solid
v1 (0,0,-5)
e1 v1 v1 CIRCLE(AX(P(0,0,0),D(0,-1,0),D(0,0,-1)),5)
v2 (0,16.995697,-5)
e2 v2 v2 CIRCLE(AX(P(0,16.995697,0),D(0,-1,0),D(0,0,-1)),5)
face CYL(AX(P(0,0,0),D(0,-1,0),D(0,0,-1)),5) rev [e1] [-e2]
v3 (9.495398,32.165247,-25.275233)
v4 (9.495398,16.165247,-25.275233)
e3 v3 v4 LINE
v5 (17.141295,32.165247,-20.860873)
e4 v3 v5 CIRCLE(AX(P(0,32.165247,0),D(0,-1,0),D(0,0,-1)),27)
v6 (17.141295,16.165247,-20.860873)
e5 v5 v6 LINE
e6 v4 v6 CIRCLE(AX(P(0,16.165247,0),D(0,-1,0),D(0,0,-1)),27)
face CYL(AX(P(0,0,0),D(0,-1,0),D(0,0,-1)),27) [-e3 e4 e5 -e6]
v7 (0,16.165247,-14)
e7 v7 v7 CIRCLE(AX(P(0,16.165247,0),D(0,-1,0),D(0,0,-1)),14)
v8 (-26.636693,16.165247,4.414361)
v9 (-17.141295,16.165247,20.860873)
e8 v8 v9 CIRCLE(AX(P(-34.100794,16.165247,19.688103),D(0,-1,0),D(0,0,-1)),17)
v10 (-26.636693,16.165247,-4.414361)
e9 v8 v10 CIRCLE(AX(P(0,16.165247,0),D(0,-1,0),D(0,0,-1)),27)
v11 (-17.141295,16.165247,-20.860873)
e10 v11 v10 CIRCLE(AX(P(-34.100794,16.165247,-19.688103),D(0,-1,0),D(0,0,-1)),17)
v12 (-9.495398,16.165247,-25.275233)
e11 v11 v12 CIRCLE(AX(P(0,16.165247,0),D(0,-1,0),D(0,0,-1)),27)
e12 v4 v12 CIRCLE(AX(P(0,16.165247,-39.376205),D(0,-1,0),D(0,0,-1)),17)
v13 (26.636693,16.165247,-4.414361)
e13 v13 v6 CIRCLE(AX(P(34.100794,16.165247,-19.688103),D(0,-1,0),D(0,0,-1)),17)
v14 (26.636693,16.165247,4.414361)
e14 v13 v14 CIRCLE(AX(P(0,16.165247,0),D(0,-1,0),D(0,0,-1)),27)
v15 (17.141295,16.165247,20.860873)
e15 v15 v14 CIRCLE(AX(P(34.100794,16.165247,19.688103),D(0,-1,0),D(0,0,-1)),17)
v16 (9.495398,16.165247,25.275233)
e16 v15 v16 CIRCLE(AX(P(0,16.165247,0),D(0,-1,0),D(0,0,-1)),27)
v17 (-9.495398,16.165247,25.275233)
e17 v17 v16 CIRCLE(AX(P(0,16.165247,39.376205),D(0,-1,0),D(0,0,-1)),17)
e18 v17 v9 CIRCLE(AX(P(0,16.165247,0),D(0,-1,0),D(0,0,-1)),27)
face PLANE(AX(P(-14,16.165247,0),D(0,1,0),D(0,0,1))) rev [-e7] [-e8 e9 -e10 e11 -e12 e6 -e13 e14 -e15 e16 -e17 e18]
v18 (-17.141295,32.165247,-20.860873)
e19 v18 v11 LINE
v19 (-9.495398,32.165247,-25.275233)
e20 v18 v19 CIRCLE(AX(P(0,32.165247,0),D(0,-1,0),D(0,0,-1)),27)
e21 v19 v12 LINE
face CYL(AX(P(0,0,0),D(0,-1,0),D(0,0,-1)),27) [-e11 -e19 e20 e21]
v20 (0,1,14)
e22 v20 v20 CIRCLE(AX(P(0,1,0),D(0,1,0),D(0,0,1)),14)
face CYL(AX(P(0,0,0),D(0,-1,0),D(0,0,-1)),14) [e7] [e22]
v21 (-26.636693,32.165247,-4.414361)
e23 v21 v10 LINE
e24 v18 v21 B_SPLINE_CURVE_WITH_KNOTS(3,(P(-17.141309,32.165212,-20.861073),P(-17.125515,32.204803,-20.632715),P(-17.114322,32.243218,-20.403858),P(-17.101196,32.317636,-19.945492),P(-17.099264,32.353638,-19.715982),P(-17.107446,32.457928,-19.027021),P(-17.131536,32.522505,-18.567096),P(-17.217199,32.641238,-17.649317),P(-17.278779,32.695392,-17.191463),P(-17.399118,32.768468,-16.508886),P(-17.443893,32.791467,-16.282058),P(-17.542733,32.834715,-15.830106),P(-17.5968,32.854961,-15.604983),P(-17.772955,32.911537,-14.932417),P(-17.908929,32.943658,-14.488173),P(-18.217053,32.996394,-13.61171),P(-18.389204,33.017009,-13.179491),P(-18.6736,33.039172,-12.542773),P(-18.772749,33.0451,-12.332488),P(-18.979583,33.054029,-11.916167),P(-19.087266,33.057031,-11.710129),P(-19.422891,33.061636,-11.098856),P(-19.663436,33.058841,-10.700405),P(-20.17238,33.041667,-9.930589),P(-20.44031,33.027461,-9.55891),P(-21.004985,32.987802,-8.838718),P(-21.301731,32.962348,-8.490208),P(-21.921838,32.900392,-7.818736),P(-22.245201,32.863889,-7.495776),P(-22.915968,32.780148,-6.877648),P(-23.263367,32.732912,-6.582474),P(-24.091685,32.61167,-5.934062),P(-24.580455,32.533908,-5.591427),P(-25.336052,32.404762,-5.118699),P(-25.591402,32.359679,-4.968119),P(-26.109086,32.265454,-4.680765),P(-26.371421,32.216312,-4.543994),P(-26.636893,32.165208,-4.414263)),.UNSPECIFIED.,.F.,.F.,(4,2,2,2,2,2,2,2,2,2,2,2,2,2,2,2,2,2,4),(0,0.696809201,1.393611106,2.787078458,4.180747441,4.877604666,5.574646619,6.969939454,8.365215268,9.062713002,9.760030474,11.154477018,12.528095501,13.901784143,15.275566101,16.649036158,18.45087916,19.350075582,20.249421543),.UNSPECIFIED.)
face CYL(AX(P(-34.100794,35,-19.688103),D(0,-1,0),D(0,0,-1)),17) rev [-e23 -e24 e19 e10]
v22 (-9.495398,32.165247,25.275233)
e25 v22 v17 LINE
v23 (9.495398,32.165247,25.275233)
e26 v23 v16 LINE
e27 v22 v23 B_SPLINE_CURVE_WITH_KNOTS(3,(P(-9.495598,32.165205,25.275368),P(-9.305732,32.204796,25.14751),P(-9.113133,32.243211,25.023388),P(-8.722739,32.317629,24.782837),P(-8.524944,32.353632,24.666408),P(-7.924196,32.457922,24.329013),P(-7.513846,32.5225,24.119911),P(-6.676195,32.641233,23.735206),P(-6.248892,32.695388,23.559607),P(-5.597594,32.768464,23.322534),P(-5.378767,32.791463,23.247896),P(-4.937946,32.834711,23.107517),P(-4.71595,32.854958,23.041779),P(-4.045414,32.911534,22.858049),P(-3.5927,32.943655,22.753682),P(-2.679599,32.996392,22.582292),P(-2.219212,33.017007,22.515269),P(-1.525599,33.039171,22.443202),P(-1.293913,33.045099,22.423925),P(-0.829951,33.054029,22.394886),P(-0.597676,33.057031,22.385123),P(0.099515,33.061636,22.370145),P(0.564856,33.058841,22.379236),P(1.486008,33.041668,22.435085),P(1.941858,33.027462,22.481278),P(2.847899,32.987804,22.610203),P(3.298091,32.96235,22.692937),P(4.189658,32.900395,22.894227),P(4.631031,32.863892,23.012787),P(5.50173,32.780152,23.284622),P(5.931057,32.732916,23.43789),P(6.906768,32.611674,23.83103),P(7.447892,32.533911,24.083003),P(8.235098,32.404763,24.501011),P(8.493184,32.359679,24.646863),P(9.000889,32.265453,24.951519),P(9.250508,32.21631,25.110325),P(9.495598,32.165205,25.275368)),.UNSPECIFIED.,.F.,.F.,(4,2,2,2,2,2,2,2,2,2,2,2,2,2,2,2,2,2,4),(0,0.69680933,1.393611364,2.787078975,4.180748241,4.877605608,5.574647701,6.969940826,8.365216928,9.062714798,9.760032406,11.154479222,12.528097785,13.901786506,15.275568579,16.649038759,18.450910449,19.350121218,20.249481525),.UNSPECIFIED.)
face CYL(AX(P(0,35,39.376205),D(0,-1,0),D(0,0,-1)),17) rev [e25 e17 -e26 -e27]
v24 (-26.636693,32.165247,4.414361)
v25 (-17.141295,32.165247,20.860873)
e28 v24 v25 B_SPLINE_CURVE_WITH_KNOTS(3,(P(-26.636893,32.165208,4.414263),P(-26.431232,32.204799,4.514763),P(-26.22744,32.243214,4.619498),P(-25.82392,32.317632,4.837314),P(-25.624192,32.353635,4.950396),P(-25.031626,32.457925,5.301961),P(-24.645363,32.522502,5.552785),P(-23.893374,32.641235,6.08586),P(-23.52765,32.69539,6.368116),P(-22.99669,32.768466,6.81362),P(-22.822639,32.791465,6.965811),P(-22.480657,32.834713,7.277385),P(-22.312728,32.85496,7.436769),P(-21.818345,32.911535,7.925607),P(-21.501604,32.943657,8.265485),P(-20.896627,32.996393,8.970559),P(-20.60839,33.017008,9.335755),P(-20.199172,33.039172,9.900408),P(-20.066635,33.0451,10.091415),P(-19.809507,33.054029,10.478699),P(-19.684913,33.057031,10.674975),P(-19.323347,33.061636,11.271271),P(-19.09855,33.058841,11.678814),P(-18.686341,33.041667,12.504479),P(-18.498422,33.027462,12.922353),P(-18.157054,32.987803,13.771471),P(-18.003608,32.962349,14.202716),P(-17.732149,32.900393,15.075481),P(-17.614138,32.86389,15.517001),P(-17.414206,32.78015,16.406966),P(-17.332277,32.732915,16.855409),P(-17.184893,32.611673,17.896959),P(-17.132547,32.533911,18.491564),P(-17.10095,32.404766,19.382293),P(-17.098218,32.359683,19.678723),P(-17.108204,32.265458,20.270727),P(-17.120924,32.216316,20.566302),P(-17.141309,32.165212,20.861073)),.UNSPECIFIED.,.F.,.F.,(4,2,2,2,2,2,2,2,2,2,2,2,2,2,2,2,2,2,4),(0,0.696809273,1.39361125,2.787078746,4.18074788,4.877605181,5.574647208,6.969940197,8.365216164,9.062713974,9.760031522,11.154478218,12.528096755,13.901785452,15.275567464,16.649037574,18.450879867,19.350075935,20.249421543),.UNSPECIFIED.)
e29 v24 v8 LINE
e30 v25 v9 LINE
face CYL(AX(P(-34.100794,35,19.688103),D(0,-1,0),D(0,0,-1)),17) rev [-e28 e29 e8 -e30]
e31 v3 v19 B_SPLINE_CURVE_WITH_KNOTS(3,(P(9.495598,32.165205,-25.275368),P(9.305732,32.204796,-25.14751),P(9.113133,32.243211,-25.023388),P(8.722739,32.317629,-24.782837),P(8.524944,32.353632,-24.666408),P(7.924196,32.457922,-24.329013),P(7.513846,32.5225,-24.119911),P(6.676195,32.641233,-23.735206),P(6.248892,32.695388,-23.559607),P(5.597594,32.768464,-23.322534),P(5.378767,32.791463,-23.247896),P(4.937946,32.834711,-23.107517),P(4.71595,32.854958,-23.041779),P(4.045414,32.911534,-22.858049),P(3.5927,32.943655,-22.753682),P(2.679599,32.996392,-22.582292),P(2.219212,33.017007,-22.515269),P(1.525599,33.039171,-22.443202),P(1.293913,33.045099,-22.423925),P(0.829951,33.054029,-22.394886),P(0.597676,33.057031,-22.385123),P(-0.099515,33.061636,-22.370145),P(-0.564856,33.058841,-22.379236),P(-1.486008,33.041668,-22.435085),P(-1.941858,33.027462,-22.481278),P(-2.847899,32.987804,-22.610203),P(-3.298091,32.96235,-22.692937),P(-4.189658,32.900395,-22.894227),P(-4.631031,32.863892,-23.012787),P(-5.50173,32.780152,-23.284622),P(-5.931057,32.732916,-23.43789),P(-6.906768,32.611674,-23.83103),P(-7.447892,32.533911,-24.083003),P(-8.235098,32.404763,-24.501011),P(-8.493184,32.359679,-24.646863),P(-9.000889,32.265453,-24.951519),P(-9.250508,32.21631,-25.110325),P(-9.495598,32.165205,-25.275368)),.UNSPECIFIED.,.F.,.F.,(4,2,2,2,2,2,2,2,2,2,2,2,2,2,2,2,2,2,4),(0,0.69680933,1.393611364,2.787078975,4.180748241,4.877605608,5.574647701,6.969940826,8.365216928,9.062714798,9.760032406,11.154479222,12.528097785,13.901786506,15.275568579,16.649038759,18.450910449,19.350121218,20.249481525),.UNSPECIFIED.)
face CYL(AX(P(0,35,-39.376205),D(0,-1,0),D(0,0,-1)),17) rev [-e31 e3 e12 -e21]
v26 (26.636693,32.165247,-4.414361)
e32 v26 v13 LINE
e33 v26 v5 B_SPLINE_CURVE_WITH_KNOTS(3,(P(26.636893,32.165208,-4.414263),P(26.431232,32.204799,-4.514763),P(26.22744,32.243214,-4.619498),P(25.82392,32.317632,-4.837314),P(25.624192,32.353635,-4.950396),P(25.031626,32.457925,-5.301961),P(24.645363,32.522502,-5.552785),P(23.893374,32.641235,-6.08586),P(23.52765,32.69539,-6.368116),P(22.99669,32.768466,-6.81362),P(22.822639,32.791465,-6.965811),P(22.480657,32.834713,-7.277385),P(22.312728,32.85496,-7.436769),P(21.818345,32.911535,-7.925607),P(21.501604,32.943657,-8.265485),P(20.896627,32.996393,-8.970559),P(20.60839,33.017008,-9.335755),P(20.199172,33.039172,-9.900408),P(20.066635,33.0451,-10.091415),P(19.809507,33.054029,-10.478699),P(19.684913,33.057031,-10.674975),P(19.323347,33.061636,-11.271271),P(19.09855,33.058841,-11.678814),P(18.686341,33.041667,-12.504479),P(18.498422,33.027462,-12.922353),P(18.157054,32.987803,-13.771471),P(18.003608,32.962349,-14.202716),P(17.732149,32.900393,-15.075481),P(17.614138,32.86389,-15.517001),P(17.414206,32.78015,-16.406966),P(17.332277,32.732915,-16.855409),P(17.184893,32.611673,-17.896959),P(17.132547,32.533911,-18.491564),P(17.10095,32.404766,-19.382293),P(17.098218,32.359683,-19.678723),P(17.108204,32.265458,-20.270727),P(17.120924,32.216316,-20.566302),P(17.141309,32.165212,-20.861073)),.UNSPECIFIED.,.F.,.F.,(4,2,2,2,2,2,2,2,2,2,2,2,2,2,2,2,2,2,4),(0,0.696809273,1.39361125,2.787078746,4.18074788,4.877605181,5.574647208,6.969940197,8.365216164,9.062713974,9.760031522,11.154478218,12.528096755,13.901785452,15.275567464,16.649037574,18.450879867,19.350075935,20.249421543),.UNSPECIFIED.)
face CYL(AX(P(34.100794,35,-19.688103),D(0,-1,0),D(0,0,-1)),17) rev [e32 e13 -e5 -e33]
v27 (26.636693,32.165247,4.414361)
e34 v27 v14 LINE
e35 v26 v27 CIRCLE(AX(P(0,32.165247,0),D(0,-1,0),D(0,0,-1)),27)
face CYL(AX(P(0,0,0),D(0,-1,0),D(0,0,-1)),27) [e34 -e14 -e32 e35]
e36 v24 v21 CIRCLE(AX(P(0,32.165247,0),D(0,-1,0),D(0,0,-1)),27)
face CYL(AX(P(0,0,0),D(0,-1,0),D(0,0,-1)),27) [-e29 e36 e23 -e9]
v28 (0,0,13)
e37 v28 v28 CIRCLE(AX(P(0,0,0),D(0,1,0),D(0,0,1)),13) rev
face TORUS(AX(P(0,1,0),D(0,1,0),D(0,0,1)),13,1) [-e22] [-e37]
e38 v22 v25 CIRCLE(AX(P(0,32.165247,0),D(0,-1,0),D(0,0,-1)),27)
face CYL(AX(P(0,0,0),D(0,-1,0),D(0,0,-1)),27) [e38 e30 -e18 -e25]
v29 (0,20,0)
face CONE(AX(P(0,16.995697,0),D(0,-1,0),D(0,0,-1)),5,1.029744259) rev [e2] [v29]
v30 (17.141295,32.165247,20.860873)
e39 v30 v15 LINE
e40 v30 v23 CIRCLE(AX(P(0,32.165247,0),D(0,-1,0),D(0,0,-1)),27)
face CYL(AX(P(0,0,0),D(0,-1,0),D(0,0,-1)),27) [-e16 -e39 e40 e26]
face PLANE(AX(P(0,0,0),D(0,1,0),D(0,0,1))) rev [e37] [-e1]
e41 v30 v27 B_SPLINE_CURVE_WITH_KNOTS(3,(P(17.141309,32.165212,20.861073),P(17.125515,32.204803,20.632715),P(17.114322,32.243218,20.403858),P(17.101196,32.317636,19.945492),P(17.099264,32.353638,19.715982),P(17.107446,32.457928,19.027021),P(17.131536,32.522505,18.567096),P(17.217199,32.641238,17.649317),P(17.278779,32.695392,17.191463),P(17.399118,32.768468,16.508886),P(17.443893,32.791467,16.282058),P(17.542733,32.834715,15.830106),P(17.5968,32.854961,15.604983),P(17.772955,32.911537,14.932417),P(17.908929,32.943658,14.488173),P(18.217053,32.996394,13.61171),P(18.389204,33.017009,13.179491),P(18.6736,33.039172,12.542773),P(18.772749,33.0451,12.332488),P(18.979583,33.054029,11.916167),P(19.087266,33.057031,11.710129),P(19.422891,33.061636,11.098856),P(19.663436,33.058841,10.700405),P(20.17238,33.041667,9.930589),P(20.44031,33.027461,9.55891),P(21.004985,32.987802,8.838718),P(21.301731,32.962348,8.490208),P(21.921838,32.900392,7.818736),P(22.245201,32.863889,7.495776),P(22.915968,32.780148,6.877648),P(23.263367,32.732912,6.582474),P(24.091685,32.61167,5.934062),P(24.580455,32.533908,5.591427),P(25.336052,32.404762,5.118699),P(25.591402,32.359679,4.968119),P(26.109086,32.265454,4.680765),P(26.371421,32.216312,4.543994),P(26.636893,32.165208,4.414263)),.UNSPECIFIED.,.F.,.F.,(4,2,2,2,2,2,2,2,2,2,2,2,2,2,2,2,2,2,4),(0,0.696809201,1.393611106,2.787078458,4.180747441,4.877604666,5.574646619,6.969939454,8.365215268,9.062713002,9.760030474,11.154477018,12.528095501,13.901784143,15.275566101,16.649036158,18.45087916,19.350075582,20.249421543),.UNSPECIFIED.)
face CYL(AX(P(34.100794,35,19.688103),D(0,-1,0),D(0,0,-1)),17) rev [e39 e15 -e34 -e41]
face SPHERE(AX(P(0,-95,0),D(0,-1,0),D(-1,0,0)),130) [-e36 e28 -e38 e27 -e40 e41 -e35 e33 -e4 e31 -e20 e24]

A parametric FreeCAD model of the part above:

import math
import FreeCAD as App
import Part
import Sketcher


def edges_at(feature, points):
    """Names of the edges that pass closest to the given points."""
    edges = feature.Shape.Edges
    near = lambda p: min(range(len(edges)), key=lambda i: edges[i].distToShape(Part.Vertex(*p))[0])
    return sorted({f"Edge{near(p) + 1}" for p in points})

doc = App.newDocument("Part")
body = doc.addObject("PartDesign::Body", "Body")

sketch1 = body.newObject("Sketcher::SketchObject", "Sketch")
sketch1.AttachmentSupport = (doc.getObject("XY_Plane"), [""])
sketch1.MapMode = "FlatFace"
sketch1.addGeometry([
    Part.LineSegment(App.Vector(-14, 0, 0), App.Vector(0, 0, 0)),
    Part.LineSegment(App.Vector(0, 0, 0), App.Vector(0, 35, 0)),
    Part.ArcOfCircle(Part.Circle(App.Vector(0, -95, 0), App.Vector(0, 0, 1), 130), math.radians(90), math.radians(101.98715)),
    Part.LineSegment(App.Vector(-27, 32.165247, 0), App.Vector(-27, 16.165247, 0)),
    Part.LineSegment(App.Vector(-27, 16.165247, 0), App.Vector(-14, 16.165247, 0)),
    Part.LineSegment(App.Vector(-14, 16.165247, 0), App.Vector(-14, 0, 0)),
], False)
sketch1.addConstraint([
    Sketcher.Constraint("Coincident", 0, 2, 1, 1),
    Sketcher.Constraint("Coincident", 1, 2, 2, 1),
    Sketcher.Constraint("Coincident", 2, 2, 3, 1),
    Sketcher.Constraint("Coincident", 3, 2, 4, 1),
    Sketcher.Constraint("Coincident", 4, 2, 5, 1),
    Sketcher.Constraint("Coincident", 5, 2, 0, 1),
    Sketcher.Constraint("Horizontal", 0),
    Sketcher.Constraint("Vertical", 1),
    Sketcher.Constraint("Vertical", 3),
    Sketcher.Constraint("Horizontal", 4),
    Sketcher.Constraint("Vertical", 5),
    Sketcher.Constraint("Coincident", 0, 2, -1, 1),
    Sketcher.Constraint("PointOnObject", 2, 3, -2),
    Sketcher.Constraint("Radius", 2, 130.0),
    Sketcher.Constraint("DistanceX", 0, 1, 0, 2, 14.0),
    Sketcher.Constraint("DistanceX", 4, 1, 4, 2, 13.0),
    Sketcher.Constraint("DistanceY", 1, 1, 1, 2, 35.0),
    Sketcher.Constraint("DistanceY", 3, 2, 3, 1, 16.0),
])
revolution = body.newObject("PartDesign::Revolution", "Revolution")
revolution.Profile = sketch1
revolution.ReferenceAxis = (sketch1, ["V_Axis"])
revolution.Angle = 360

sketch2 = body.newObject("Sketcher::SketchObject", "Sketch001")
sketch2.AttachmentSupport = (doc.getObject("XZ_Plane"), [""])
sketch2.MapMode = "FlatFace"
sketch2.AttachmentOffset = App.Placement(App.Vector(0, 0, -16.165247), App.Rotation())
sketch2.addGeometry([
    Part.ArcOfCircle(Part.Circle(App.Vector(-34.100794, 19.688103, 0), App.Vector(0, 0, 1), 17), math.radians(-63.955775), math.radians(3.955775)),
    Part.ArcOfCircle(Part.Circle(App.Vector(0, 0, 0), App.Vector(0, 0, 1), 27), math.radians(129.409808), math.radians(170.590192)),
    Part.ArcOfCircle(Part.Circle(App.Vector(0, 0, 0), App.Vector(0, 0, 1), 27), math.radians(69.409808), math.radians(110.590192)),
    Part.ArcOfCircle(Part.Circle(App.Vector(0, 39.376205, 0), App.Vector(0, 0, 1), 17), math.radians(-123.955775), math.radians(-56.044225)),
    Part.ArcOfCircle(Part.Circle(App.Vector(0, 0, 0), App.Vector(0, 0, 1), 27), math.radians(9.409808), math.radians(50.590192)),
    Part.ArcOfCircle(Part.Circle(App.Vector(34.100794, 19.688103, 0), App.Vector(0, 0, 1), 17), math.radians(176.044225), math.radians(243.955775)),
    Part.ArcOfCircle(Part.Circle(App.Vector(0, 0, 0), App.Vector(0, 0, 1), 27), math.radians(-50.590192), math.radians(-9.409808)),
    Part.ArcOfCircle(Part.Circle(App.Vector(34.100794, -19.688103, 0), App.Vector(0, 0, 1), 17), math.radians(116.044225), math.radians(183.955775)),
    Part.ArcOfCircle(Part.Circle(App.Vector(0, -39.376205, 0), App.Vector(0, 0, 1), 17), math.radians(56.044225), math.radians(123.955775)),
    Part.ArcOfCircle(Part.Circle(App.Vector(0, 0, 0), App.Vector(0, 0, 1), 27), math.radians(-110.590192), math.radians(-69.409808)),
    Part.ArcOfCircle(Part.Circle(App.Vector(-34.100794, -19.688103, 0), App.Vector(0, 0, 1), 17), math.radians(-3.955775), math.radians(63.955775)),
    Part.ArcOfCircle(Part.Circle(App.Vector(0, 0, 0), App.Vector(0, 0, 1), 27), math.radians(-170.590192), math.radians(-129.409808)),
], False)
sketch2.addConstraint([
    Sketcher.Constraint("Coincident", 0, 1, 1, 2),
    Sketcher.Constraint("Coincident", 1, 1, 0, 2),
    Sketcher.Constraint("Coincident", 2, 1, 3, 2),
    Sketcher.Constraint("Coincident", 3, 1, 2, 2),
    Sketcher.Constraint("Coincident", 4, 1, 5, 2),
    Sketcher.Constraint("Coincident", 5, 1, 4, 2),
    Sketcher.Constraint("Coincident", 6, 1, 7, 2),
    Sketcher.Constraint("Coincident", 7, 1, 6, 2),
    Sketcher.Constraint("Coincident", 8, 1, 9, 2),
    Sketcher.Constraint("Coincident", 9, 1, 8, 2),
    Sketcher.Constraint("Coincident", 10, 1, 11, 2),
    Sketcher.Constraint("Coincident", 11, 1, 10, 2),
    Sketcher.Constraint("Coincident", 1, 3, -1, 1),
    Sketcher.Constraint("Coincident", 2, 3, -1, 1),
    Sketcher.Constraint("Coincident", 4, 3, -1, 1),
    Sketcher.Constraint("Coincident", 6, 3, -1, 1),
    Sketcher.Constraint("Coincident", 9, 3, -1, 1),
    Sketcher.Constraint("Coincident", 11, 3, -1, 1),
    Sketcher.Constraint("Equal", 1, 2),
    Sketcher.Constraint("Equal", 0, 3),
    Sketcher.Constraint("Equal", 2, 4),
    Sketcher.Constraint("Equal", 3, 5),
    Sketcher.Constraint("Equal", 4, 6),
    Sketcher.Constraint("Equal", 5, 7),
    Sketcher.Constraint("Equal", 7, 8),
    Sketcher.Constraint("Equal", 6, 9),
    Sketcher.Constraint("Equal", 8, 10),
    Sketcher.Constraint("Equal", 9, 11),
    Sketcher.Constraint("Symmetric", 0, 3, 7, 3, -1, 1),
    Sketcher.Constraint("Symmetric", 3, 3, 8, 3, -1, 1),
    Sketcher.Constraint("Symmetric", 5, 3, 10, 3, -1, 1),
    Sketcher.Constraint("Symmetric", 0, 3, 5, 3, -2),
    Sketcher.Constraint("PointOnObject", 3, 3, -2),
    Sketcher.Constraint("Radius", 0, 17.0),
    Sketcher.Constraint("Radius", 1, 27.0),
    Sketcher.Constraint("DistanceX", 0, 3, 0, 1, 7.464101),
    Sketcher.Constraint("DistanceX", 5, 1, 5, 3, 16.959499),
    Sketcher.Constraint("DistanceY", 5, 3, 2, 1, 5.587131),
])
pocket1 = body.newObject("PartDesign::Pocket", "Pocket")
pocket1.Profile = sketch2
pocket1.Type = "ThroughAll"

sketch3 = body.newObject("Sketcher::SketchObject", "Sketch002")
sketch3.AttachmentSupport = (doc.getObject("XZ_Plane"), [""])
sketch3.MapMode = "FlatFace"
sketch3.addGeometry(Part.Circle(App.Vector(0, 0, 0), App.Vector(0, 0, 1), 5), False)
sketch3.addConstraint([
    Sketcher.Constraint("Coincident", 0, 3, -1, 1),
    Sketcher.Constraint("Diameter", 0, 10.0),
])
doc.recompute()
hole = body.newObject("PartDesign::Hole", "Hole")
hole.Profile = sketch3
hole.ThreadType = "None"
hole.Diameter = 10
hole.DepthType = "Dimension"
hole.Depth = 16.995697
hole.DrillPoint = "Angled"
hole.DrillPointAngle = 118
doc.recompute()

fillet = body.newObject("PartDesign::Fillet", "Fillet")
fillet.Base = (hole, edges_at(hole, [(0, 0, 14)]))
fillet.Radius = 1

doc.recompute()
